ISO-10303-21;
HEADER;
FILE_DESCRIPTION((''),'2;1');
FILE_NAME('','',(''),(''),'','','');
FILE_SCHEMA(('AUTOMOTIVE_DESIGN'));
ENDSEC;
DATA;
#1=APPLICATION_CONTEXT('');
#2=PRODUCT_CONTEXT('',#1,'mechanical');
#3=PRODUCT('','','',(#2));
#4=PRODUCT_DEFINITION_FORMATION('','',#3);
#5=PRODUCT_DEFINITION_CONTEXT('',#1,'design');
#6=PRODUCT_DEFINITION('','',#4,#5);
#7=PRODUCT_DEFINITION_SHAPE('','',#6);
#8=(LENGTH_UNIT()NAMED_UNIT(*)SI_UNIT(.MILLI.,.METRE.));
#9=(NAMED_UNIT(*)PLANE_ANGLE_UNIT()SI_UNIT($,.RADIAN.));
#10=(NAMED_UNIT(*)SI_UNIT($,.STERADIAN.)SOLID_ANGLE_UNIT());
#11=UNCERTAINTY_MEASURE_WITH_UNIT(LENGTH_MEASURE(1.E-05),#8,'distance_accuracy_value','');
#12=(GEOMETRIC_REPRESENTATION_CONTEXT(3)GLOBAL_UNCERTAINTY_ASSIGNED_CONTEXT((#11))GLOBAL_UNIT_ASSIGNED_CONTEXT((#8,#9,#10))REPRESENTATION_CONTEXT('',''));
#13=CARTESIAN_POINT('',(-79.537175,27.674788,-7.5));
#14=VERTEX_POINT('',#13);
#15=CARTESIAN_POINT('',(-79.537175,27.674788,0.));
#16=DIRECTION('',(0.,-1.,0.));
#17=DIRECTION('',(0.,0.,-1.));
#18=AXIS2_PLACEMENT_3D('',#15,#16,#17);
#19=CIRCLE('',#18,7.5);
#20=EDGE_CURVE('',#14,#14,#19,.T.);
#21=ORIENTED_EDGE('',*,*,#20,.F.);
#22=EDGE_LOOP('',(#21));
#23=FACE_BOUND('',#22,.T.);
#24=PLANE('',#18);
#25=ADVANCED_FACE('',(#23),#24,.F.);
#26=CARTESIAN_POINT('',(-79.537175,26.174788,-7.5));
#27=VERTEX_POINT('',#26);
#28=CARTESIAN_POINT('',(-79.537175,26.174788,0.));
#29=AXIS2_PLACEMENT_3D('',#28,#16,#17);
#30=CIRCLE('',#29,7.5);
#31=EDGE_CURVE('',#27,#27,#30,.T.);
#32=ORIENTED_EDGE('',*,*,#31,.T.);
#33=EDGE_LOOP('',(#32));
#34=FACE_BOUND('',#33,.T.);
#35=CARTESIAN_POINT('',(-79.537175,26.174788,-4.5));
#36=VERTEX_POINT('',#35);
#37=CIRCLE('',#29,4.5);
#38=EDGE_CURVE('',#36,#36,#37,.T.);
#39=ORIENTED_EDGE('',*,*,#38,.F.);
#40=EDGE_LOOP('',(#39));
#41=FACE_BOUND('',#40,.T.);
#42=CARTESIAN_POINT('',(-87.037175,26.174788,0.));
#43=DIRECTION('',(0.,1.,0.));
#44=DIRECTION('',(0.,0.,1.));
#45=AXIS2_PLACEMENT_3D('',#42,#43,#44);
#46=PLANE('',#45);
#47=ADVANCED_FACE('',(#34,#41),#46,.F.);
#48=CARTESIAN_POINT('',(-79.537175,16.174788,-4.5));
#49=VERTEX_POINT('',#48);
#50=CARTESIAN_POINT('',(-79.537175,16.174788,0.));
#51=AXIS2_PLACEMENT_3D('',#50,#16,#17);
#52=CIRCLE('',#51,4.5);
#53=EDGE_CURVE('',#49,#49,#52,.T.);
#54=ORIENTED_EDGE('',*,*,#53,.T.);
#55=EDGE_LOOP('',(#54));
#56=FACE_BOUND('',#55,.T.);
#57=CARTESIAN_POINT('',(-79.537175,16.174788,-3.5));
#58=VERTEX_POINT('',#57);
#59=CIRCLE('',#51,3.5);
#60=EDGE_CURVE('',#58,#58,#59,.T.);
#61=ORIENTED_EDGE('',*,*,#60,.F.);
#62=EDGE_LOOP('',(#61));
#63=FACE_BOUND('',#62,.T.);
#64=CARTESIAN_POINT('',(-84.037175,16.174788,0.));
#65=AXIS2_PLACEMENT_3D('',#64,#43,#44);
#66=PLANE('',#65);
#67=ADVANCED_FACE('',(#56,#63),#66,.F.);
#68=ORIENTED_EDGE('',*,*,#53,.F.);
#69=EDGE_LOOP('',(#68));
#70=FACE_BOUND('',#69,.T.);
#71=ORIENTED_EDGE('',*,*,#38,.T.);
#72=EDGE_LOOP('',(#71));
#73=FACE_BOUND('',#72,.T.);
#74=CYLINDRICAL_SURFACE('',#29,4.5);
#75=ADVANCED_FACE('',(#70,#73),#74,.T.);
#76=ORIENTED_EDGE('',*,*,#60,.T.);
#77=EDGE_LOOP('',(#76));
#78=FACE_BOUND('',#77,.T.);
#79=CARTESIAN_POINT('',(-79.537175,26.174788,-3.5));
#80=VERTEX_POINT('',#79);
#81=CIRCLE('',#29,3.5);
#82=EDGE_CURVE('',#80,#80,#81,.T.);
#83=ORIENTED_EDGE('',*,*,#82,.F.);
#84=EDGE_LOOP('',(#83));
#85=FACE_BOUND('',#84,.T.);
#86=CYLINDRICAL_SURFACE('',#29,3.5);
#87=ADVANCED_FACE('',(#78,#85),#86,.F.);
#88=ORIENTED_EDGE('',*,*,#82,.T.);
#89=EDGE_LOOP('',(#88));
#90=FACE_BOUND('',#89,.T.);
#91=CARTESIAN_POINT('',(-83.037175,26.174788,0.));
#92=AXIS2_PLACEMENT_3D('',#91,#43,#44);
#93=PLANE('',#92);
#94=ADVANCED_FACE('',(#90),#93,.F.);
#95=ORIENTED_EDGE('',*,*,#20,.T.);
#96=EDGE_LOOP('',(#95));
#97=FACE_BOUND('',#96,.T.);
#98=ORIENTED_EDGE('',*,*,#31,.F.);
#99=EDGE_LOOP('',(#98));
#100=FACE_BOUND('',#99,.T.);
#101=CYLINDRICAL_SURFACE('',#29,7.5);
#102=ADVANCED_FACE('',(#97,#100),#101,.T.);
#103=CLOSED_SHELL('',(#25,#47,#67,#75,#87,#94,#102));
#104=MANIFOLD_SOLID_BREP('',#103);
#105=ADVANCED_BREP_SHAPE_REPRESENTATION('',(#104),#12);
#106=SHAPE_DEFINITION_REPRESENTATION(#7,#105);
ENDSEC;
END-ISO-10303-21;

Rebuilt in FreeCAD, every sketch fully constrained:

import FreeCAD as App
import Part
import Sketcher

doc = App.newDocument("Part")
body = doc.addObject("PartDesign::Body", "Body")

# Sketch on XY plane
sketch1 = body.newObject("Sketcher::SketchObject", "Sketch")
sketch1.AttachmentSupport = (doc.getObject("XY_Plane"), [""])
sketch1.MapMode = "FlatFace"
sketch1.addGeometry([
    Part.LineSegment(App.Vector(-79.5, 27.7, 0), App.Vector(-87, 27.7, 0)),  # 0
    Part.LineSegment(App.Vector(-87, 27.7, 0), App.Vector(-87, 26.2, 0)),  # 1
    Part.LineSegment(App.Vector(-87, 26.2, 0), App.Vector(-84, 26.2, 0)),  # 2
    Part.LineSegment(App.Vector(-84, 26.2, 0), App.Vector(-84, 16.2, 0)),  # 3
    Part.LineSegment(App.Vector(-84, 16.2, 0), App.Vector(-83, 16.2, 0)),  # 4
    Part.LineSegment(App.Vector(-83, 16.2, 0), App.Vector(-83, 26.2, 0)),  # 5
    Part.LineSegment(App.Vector(-83, 26.2, 0), App.Vector(-79.5, 26.2, 0)),  # 6
    Part.LineSegment(App.Vector(-79.5, 26.2, 0), App.Vector(-79.5, 27.7, 0)),  # 7
], False)
sketch1.addGeometry(Part.LineSegment(App.Vector(-79.5, 16.2, 0), App.Vector(-79.5, 27.7, 0)), True)  # axis
sketch1.addConstraint([
    Sketcher.Constraint("Coincident", 0, 2, 1, 1),
    Sketcher.Constraint("Coincident", 1, 2, 2, 1),
    Sketcher.Constraint("Coincident", 2, 2, 3, 1),
    Sketcher.Constraint("Coincident", 3, 2, 4, 1),
    Sketcher.Constraint("Coincident", 4, 2, 5, 1),
    Sketcher.Constraint("Coincident", 5, 2, 6, 1),
    Sketcher.Constraint("Coincident", 6, 2, 7, 1),
    Sketcher.Constraint("Coincident", 7, 2, 0, 1),
    Sketcher.Constraint("Horizontal", 0),
    Sketcher.Constraint("Vertical", 1),
    Sketcher.Constraint("Horizontal", 2),
    Sketcher.Constraint("Vertical", 3),
    Sketcher.Constraint("Horizontal", 4),
    Sketcher.Constraint("Vertical", 5),
    Sketcher.Constraint("Horizontal", 6),
    Sketcher.Constraint("Vertical", 7),
    Sketcher.Constraint("Vertical", 8),
    Sketcher.Constraint("Coincident", 8, 2, 7, 2),
    Sketcher.Constraint("Horizontal", 2, 2, 5, 2),
    Sketcher.Constraint("Horizontal", 4, 2, 8, 1),
    Sketcher.Constraint("DistanceX", 2, 1, 2, 2, 3.0),
    Sketcher.Constraint("DistanceX", 4, 1, 4, 2, 1.0),
    Sketcher.Constraint("DistanceY", 3, 2, 3, 1, 10.0),
    Sketcher.Constraint("DistanceX", 0, 2, 0, 1, 7.5),
    Sketcher.Constraint("DistanceY", 1, 2, 1, 1, 1.5),
    Sketcher.Constraint("DistanceX", 0, 2, -1, 1, 87.037175),
    Sketcher.Constraint("DistanceY", -1, 1, 0, 2, 27.674788),
])
revolution = body.newObject("PartDesign::Revolution", "Revolution")
revolution.Profile = sketch1
revolution.ReferenceAxis = (sketch1, ["Axis0"])
revolution.Angle = 360

doc.recompute()
